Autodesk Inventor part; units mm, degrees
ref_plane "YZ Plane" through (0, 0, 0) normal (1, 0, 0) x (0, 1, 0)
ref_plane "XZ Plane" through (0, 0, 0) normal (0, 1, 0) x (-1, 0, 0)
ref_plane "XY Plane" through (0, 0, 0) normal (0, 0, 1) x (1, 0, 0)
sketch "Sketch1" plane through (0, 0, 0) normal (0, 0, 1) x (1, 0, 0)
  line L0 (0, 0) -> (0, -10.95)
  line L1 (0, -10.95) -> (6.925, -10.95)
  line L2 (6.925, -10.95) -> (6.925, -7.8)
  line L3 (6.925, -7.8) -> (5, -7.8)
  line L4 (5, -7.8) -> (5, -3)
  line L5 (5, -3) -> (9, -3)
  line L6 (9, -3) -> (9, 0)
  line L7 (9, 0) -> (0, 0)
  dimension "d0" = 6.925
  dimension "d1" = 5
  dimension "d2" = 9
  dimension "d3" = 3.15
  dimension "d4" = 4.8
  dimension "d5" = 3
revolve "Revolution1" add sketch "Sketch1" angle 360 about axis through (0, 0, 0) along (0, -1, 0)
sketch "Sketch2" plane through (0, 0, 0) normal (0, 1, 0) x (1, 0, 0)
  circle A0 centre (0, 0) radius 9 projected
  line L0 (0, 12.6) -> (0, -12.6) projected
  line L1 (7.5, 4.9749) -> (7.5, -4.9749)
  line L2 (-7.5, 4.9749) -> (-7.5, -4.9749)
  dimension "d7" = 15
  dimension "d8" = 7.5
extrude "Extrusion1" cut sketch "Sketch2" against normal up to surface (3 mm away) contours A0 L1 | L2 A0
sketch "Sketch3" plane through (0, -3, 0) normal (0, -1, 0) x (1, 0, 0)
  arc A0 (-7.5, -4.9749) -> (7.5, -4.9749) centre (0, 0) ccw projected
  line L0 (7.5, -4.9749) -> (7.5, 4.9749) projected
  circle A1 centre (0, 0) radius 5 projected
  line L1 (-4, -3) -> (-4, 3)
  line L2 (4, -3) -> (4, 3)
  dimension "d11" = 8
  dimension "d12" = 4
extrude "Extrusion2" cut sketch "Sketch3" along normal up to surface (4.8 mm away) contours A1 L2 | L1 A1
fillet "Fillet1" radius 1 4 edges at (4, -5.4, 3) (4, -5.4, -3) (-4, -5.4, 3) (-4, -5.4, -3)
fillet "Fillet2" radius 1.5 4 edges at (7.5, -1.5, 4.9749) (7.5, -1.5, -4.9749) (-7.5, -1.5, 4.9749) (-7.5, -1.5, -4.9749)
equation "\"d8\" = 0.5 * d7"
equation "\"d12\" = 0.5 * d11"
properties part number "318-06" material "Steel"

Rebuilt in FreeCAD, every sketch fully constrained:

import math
import FreeCAD as App
import Part
import Sketcher
from FreeCAD import Vector


def edges_at(feature, points):
    """Names of the edges that pass closest to the given points."""
    edges = feature.Shape.Edges
    near = lambda p: min(range(len(edges)), key=lambda i: edges[i].distToShape(Part.Vertex(*p))[0])
    return sorted({f"Edge{near(p) + 1}" for p in points})


def add_polygon(sketch, points):
    """Adds a closed chain of lines whose ends are joined by coincident constraints."""
    first, n = sketch.GeometryCount, len(points)
    for a, b in zip(points, points[1:] + points[:1]):
        sketch.addGeometry(Part.LineSegment(App.Vector(*a, 0), App.Vector(*b, 0)), False)
    for i in range(n):
        sketch.addConstraint(Sketcher.Constraint("Coincident", first + i, 2, first + (i + 1) % n, 1))

doc = App.newDocument("Part")
params = doc.addObject("Spreadsheet::Sheet", "Params")
for row, (alias, value) in enumerate([
    ("sketch1_width", "9 mm"),
    ("sketch1_height", "3 mm"),
    ("sketch1_height2", "4.8 mm"),
    ("sketch1_height3", "3.15 mm"),
    ("revolution_angle", "360 deg"),
    ("sketch2_radius", "9 mm"),
    ("pocket1_length", "3 mm"),
    ("sketch3_radius", "5 mm"),
    ("pocket2_length", "4.8 mm"),
    ("fillet_radius", "1 mm"),
    ("fillet2_radius", "1.5 mm"),
], start=1):
    params.set(f"A{row}", alias)
    params.set(f"B{row}", "=" + value)
    params.setAlias(f"B{row}", alias)

body = doc.addObject("PartDesign::Body", "Body")

sketch1 = body.newObject("Sketcher::SketchObject", "Sketch")
sketch1.AttachmentSupport = (doc.getObject("XY_Plane"), [""])
sketch1.MapMode = "FlatFace"
add_polygon(sketch1, [(9, 0), (0, 0), (0, -10.9), (6.9, -10.9), (6.9, -7.8), (5, -7.8), (5, -3), (9, -3)])
sketch1.addConstraint(Sketcher.Constraint("Horizontal", 0))
sketch1.addConstraint(Sketcher.Constraint("Vertical", 1))
sketch1.addConstraint(Sketcher.Constraint("Horizontal", 2))
sketch1.addConstraint(Sketcher.Constraint("Vertical", 3))
sketch1.addConstraint(Sketcher.Constraint("Horizontal", 4))
sketch1.addConstraint(Sketcher.Constraint("Vertical", 5))
sketch1.addConstraint(Sketcher.Constraint("Horizontal", 6))
sketch1.addConstraint(Sketcher.Constraint("Vertical", 7))
sketch1.addConstraint(Sketcher.Constraint("Coincident", 0, 2, -1, 1))
sketch1.addConstraint(Sketcher.Constraint("DistanceX", 0, 2, 0, 1, 9.0))
sketch1.addConstraint(Sketcher.Constraint("DistanceY", 7, 1, 7, 2, 3.0))
sketch1.addConstraint(Sketcher.Constraint("DistanceY", 5, 1, 5, 2, 4.8))
sketch1.addConstraint(Sketcher.Constraint("DistanceX", -1, 1, 4, 2, 5.0))
sketch1.addConstraint(Sketcher.Constraint("DistanceY", 3, 1, 3, 2, 3.15))
sketch1.addConstraint(Sketcher.Constraint("DistanceX", 2, 1, 2, 2, 6.925))
sketch1.setExpression("Constraints[17]", "Params.sketch1_width")
sketch1.setExpression("Constraints[18]", "Params.sketch1_height")
sketch1.setExpression("Constraints[19]", "Params.sketch1_height2")
sketch1.setExpression("Constraints[21]", "Params.sketch1_height3")
revolution = body.newObject("PartDesign::Revolution", "Revolution")
revolution.Profile = sketch1
revolution.ReferenceAxis = (sketch1, ["V_Axis"])
revolution.setExpression("Angle", "Params.revolution_angle")

sketch2 = body.newObject("Sketcher::SketchObject", "Sketch001")
sketch2.AttachmentSupport = (doc.getObject("XZ_Plane"), [""])
sketch2.MapMode = "FlatFace"
sketch2.addGeometry(Part.ArcOfCircle(Part.Circle(Vector(0, 0, 0), Vector(0, 0, 1), 9), math.radians(-34), math.radians(34)), False)
sketch2.addGeometry(Part.LineSegment(Vector(8, 5, 0), Vector(8, -5, 0)), False)
sketch2.addGeometry(Part.LineSegment(Vector(-8, 5, 0), Vector(-8, -5, 0)), False)
sketch2.addGeometry(Part.ArcOfCircle(Part.Circle(Vector(0, 0, 0), Vector(0, 0, 1), 9), math.radians(146), math.radians(214)), False)
sketch2.addConstraint(Sketcher.Constraint("Coincident", 0, 1, 1, 2))
sketch2.addConstraint(Sketcher.Constraint("Coincident", 1, 1, 0, 2))
sketch2.addConstraint(Sketcher.Constraint("Coincident", 2, 1, 3, 1))
sketch2.addConstraint(Sketcher.Constraint("Coincident", 3, 2, 2, 2))
sketch2.addConstraint(Sketcher.Constraint("Vertical", 1))
sketch2.addConstraint(Sketcher.Constraint("Vertical", 2))
sketch2.addConstraint(Sketcher.Constraint("Coincident", 0, 3, -1, 1))
sketch2.addConstraint(Sketcher.Constraint("Coincident", 3, 3, -1, 1))
sketch2.addConstraint(Sketcher.Constraint("Equal", 0, 3))
sketch2.addConstraint(Sketcher.Constraint("Horizontal", 1, 1, 2, 1))
sketch2.addConstraint(Sketcher.Constraint("Radius", 0, 9.0))
sketch2.addConstraint(Sketcher.Constraint("DistanceX", 2, 1, 1, 1, 15.0))
sketch2.setExpression("Constraints[10]", "Params.sketch2_radius")
pocket1 = body.newObject("PartDesign::Pocket", "Pocket")
pocket1.Profile = sketch2
pocket1.setExpression("Length", "Params.pocket1_length")
pocket1.Reversed = True

sketch3 = body.newObject("Sketcher::SketchObject", "Sketch002")
sketch3.AttachmentSupport = (doc.getObject("XZ_Plane"), [""])
sketch3.MapMode = "FlatFace"
sketch3.AttachmentOffset = App.Placement(Vector(0, 0, 3), App.Rotation())
sketch3.addGeometry(Part.ArcOfCircle(Part.Circle(Vector(0, 0, 0), Vector(0, 0, 1), 5), math.radians(-37), math.radians(37)), False)
sketch3.addGeometry(Part.LineSegment(Vector(4, 3, 0), Vector(4, -3, 0)), False)
sketch3.addGeometry(Part.LineSegment(Vector(-4, -3, 0), Vector(-4, 3, 0)), False)
sketch3.addGeometry(Part.ArcOfCircle(Part.Circle(Vector(0, 0, 0), Vector(0, 0, 1), 5), math.radians(143), math.radians(217)), False)
sketch3.addConstraint(Sketcher.Constraint("Coincident", 0, 1, 1, 2))
sketch3.addConstraint(Sketcher.Constraint("Coincident", 1, 1, 0, 2))
sketch3.addConstraint(Sketcher.Constraint("Coincident", 2, 1, 3, 2))
sketch3.addConstraint(Sketcher.Constraint("Coincident", 3, 1, 2, 2))
sketch3.addConstraint(Sketcher.Constraint("Vertical", 1))
sketch3.addConstraint(Sketcher.Constraint("Vertical", 2))
sketch3.addConstraint(Sketcher.Constraint("Coincident", 0, 3, -1, 1))
sketch3.addConstraint(Sketcher.Constraint("Coincident", 3, 3, -1, 1))
sketch3.addConstraint(Sketcher.Constraint("Equal", 0, 3))
sketch3.addConstraint(Sketcher.Constraint("Horizontal", 0, 1, 2, 1))
sketch3.addConstraint(Sketcher.Constraint("DistanceX", -1, 1, 0, 1, 4.0))
sketch3.addConstraint(Sketcher.Constraint("Radius", 0, 5.0))
sketch3.setExpression("Constraints[11]", "Params.sketch3_radius")
pocket2 = body.newObject("PartDesign::Pocket", "Pocket001")
pocket2.Profile = sketch3
pocket2.setExpression("Length", "Params.pocket2_length")
pocket2.Reversed = True
doc.recompute()

fillet = body.newObject("PartDesign::Fillet", "Fillet")
fillet.Base = (pocket2, edges_at(pocket2, [
    (4, -5.4, 3),
    (4, -5.4, -3),
    (-4, -5.4, 3),
    (-4, -5.4, -3),
]))
fillet.setExpression("Radius", "Params.fillet_radius")
doc.recompute()

fillet2 = body.newObject("PartDesign::Fillet", "Fillet001")
fillet2.Base = (fillet, edges_at(fillet, [
    (7.5, -1.5, 4.975),
    (7.5, -1.5, -4.975),
    (-7.5, -1.5, 4.975),
    (-7.5, -1.5, -4.975),
]))
fillet2.setExpression("Radius", "Params.fillet2_radius")

doc.recompute()
